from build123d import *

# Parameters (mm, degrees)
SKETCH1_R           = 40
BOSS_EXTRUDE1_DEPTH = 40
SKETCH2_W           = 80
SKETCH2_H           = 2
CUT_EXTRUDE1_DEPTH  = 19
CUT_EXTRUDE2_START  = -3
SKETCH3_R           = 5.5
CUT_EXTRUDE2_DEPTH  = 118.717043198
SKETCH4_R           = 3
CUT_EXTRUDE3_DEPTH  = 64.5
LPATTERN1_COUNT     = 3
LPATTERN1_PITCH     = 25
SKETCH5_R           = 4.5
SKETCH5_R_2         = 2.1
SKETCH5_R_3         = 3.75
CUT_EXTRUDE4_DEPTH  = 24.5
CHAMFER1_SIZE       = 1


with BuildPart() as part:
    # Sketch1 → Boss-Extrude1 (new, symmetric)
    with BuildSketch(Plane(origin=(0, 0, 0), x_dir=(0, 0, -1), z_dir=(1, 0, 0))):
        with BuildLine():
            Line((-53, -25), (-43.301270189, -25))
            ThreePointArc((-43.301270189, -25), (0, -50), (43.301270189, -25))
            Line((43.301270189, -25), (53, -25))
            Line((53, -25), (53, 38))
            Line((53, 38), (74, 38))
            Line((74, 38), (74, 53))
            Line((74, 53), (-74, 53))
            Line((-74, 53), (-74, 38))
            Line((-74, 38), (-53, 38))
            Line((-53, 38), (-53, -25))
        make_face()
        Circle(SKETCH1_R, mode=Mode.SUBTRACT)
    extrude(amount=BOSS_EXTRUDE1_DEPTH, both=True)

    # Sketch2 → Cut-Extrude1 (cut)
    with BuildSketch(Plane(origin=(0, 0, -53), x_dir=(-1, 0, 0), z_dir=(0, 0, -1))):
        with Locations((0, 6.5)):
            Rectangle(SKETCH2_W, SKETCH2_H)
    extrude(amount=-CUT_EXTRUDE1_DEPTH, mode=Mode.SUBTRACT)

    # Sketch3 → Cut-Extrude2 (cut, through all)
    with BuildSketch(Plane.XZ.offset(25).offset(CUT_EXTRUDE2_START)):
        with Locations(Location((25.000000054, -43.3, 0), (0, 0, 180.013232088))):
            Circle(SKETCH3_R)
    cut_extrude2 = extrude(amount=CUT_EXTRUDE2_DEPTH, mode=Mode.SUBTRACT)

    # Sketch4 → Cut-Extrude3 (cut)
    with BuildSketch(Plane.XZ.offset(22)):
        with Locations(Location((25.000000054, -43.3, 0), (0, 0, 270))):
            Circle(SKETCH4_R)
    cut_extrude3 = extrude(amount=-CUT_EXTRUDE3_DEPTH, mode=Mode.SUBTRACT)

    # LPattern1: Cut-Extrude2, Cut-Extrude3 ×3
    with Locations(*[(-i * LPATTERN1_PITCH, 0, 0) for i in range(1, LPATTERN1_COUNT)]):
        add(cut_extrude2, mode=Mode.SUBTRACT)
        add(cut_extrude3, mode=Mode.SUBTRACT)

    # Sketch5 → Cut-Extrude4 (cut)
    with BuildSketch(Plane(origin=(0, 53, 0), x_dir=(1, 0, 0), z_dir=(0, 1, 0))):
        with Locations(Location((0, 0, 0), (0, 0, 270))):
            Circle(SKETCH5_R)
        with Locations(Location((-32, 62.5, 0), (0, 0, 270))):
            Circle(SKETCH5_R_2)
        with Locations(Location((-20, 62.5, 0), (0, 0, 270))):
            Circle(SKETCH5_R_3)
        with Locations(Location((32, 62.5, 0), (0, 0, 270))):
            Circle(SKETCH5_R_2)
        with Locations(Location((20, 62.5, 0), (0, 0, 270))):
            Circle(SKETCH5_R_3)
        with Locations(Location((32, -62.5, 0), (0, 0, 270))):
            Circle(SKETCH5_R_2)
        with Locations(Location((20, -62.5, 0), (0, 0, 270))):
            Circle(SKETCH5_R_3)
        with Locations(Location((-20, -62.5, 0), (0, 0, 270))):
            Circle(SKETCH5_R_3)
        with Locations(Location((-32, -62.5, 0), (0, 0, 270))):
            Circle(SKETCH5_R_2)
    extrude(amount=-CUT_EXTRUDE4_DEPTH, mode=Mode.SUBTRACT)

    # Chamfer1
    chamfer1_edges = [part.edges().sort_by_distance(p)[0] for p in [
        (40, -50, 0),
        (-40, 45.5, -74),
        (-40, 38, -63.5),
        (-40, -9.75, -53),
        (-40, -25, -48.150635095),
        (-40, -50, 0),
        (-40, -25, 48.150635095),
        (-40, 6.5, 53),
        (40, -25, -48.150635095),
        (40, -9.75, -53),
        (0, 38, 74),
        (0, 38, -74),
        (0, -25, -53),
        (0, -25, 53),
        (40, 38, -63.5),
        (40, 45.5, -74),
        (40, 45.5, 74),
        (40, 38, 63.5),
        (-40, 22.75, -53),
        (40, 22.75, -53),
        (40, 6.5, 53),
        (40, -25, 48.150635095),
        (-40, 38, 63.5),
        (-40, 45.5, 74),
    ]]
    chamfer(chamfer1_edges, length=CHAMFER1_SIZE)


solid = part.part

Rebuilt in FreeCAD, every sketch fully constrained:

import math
import FreeCAD as App
import Part
import Sketcher


def edges_at(feature, points):
    """Names of the edges that pass closest to the given points."""
    edges = feature.Shape.Edges
    near = lambda p: min(range(len(edges)), key=lambda i: edges[i].distToShape(Part.Vertex(*p))[0])
    return sorted({f"Edge{near(p) + 1}" for p in points})

doc = App.newDocument("Part")
params = doc.addObject("Spreadsheet::Sheet", "Params")
for row, (alias, value) in enumerate([
    ("sketch1_diameter", "80 mm"),
    ("sketch1_radius", "50 mm"),
    ("sketch1_width", "63 mm"),
    ("sketch1_width2", "15 mm"),
    ("sketch1_height", "21 mm"),
    ("pad1_length", "80 mm"),
    ("sketch2_width", "80 mm"),
    ("sketch2_height", "2 mm"),
    ("pocket1_length", "19 mm"),
    ("sketch3_diameter", "11 mm"),
    ("sketch4_diameter", "6 mm"),
    ("pocket3_length", "64.5 mm"),
    ("linearpattern_pitch", "25 mm"),
    ("sketch5_diameter", "9 mm"),
    ("sketch5_diameter2", "4.2 mm"),
    ("sketch5_diameter3", "7.5 mm"),
    ("pocket4_length", "24.5 mm"),
    ("chamfer_size", "1 mm"),
], start=1):
    params.set(f"A{row}", alias)
    params.set(f"B{row}", "=" + value)
    params.setAlias(f"B{row}", alias)

body = doc.addObject("PartDesign::Body", "Body")

sketch1 = doc.addObject("Sketcher::SketchObject", "Sketch")
body.addObject(sketch1)
sketch1.AttachmentSupport = (doc.YZ_Plane, [""])
sketch1.MapMode = "FlatFace"
sketch1.addGeometry(Part.LineSegment(App.Vector(-25, 53, 0), App.Vector(-25, 43, 0)), False)
sketch1.addGeometry(Part.ArcOfCircle(Part.Circle(App.Vector(0, 0, 0), App.Vector(0, 0, 1), 50), math.radians(120), math.radians(240)), False)
sketch1.addGeometry(Part.LineSegment(App.Vector(-25, -43, 0), App.Vector(-25, -53, 0)), False)
sketch1.addGeometry(Part.LineSegment(App.Vector(-25, -53, 0), App.Vector(38, -53, 0)), False)
sketch1.addGeometry(Part.LineSegment(App.Vector(38, -53, 0), App.Vector(38, -74, 0)), False)
sketch1.addGeometry(Part.LineSegment(App.Vector(38, -74, 0), App.Vector(53, -74, 0)), False)
sketch1.addGeometry(Part.LineSegment(App.Vector(53, -74, 0), App.Vector(53, 74, 0)), False)
sketch1.addGeometry(Part.LineSegment(App.Vector(53, 74, 0), App.Vector(38, 74, 0)), False)
sketch1.addGeometry(Part.LineSegment(App.Vector(38, 74, 0), App.Vector(38, 53, 0)), False)
sketch1.addGeometry(Part.LineSegment(App.Vector(38, 53, 0), App.Vector(-25, 53, 0)), False)
sketch1.addGeometry(Part.Circle(App.Vector(0, 0, 0), App.Vector(0, 0, 1), 40), False)
sketch1.addConstraint(Sketcher.Constraint("Coincident", 0, 2, 1, 1))
sketch1.addConstraint(Sketcher.Constraint("Coincident", 1, 2, 2, 1))
sketch1.addConstraint(Sketcher.Constraint("Coincident", 2, 2, 3, 1))
sketch1.addConstraint(Sketcher.Constraint("Coincident", 3, 2, 4, 1))
sketch1.addConstraint(Sketcher.Constraint("Coincident", 4, 2, 5, 1))
sketch1.addConstraint(Sketcher.Constraint("Coincident", 5, 2, 6, 1))
sketch1.addConstraint(Sketcher.Constraint("Coincident", 6, 2, 7, 1))
sketch1.addConstraint(Sketcher.Constraint("Coincident", 7, 2, 8, 1))
sketch1.addConstraint(Sketcher.Constraint("Coincident", 8, 2, 9, 1))
sketch1.addConstraint(Sketcher.Constraint("Coincident", 9, 2, 0, 1))
sketch1.addConstraint(Sketcher.Constraint("Vertical", 0))
sketch1.addConstraint(Sketcher.Constraint("Vertical", 2))
sketch1.addConstraint(Sketcher.Constraint("Horizontal", 3))
sketch1.addConstraint(Sketcher.Constraint("Vertical", 4))
sketch1.addConstraint(Sketcher.Constraint("Horizontal", 5))
sketch1.addConstraint(Sketcher.Constraint("Vertical", 6))
sketch1.addConstraint(Sketcher.Constraint("Horizontal", 7))
sketch1.addConstraint(Sketcher.Constraint("Vertical", 8))
sketch1.addConstraint(Sketcher.Constraint("Horizontal", 9))
sketch1.addConstraint(Sketcher.Constraint("Coincident", 1, 3, -1, 1))
sketch1.addConstraint(Sketcher.Constraint("Coincident", 10, 3, -1, 1))
sketch1.addConstraint(Sketcher.Constraint("Symmetric", 4, 2, 7, 2, -1))
sketch1.addConstraint(Sketcher.Constraint("Symmetric", 2, 2, 9, 2, -1))
sketch1.addConstraint(Sketcher.Constraint("Diameter", 10, 80.0))
sketch1.addConstraint(Sketcher.Constraint("Radius", 1, 50.0))
sketch1.addConstraint(Sketcher.Constraint("DistanceX", 3, 1, 3, 2, 63.0))
sketch1.addConstraint(Sketcher.Constraint("DistanceX", 5, 1, 5, 2, 15.0))
sketch1.addConstraint(Sketcher.Constraint("DistanceY", 4, 2, 4, 1, 21.0))
sketch1.addConstraint(Sketcher.Constraint("DistanceY", 6, 1, 6, 2, 148.0))
sketch1.addConstraint(Sketcher.Constraint("DistanceX", 0, 2, -1, 1, 25.0))
sketch1.setExpression("Constraints[23]", "Params.sketch1_diameter")
sketch1.setExpression("Constraints[24]", "Params.sketch1_radius")
sketch1.setExpression("Constraints[25]", "Params.sketch1_width")
sketch1.setExpression("Constraints[26]", "Params.sketch1_width2")
sketch1.setExpression("Constraints[27]", "Params.sketch1_height")
pad1 = doc.addObject("PartDesign::Pad", "Pad")
body.addObject(pad1)
pad1.Profile = sketch1
pad1.setExpression("Length", "Params.pad1_length")
pad1.Midplane = True

sketch2 = doc.addObject("Sketcher::SketchObject", "Sketch001")
body.addObject(sketch2)
sketch2.AttachmentSupport = (doc.XY_Plane, [""])
sketch2.MapMode = "FlatFace"
sketch2.AttachmentOffset = App.Placement(App.Vector(0, 0, -53), App.Rotation())
sketch2.addGeometry(Part.LineSegment(App.Vector(40, 7.5, 0), App.Vector(40, 5.5, 0)), False)
sketch2.addGeometry(Part.LineSegment(App.Vector(40, 5.5, 0), App.Vector(-40, 5.5, 0)), False)
sketch2.addGeometry(Part.LineSegment(App.Vector(-40, 5.5, 0), App.Vector(-40, 7.5, 0)), False)
sketch2.addGeometry(Part.LineSegment(App.Vector(-40, 7.5, 0), App.Vector(40, 7.5, 0)), False)
sketch2.addConstraint(Sketcher.Constraint("Coincident", 0, 2, 1, 1))
sketch2.addConstraint(Sketcher.Constraint("Coincident", 1, 2, 2, 1))
sketch2.addConstraint(Sketcher.Constraint("Coincident", 2, 2, 3, 1))
sketch2.addConstraint(Sketcher.Constraint("Coincident", 3, 2, 0, 1))
sketch2.addConstraint(Sketcher.Constraint("Vertical", 0))
sketch2.addConstraint(Sketcher.Constraint("Horizontal", 1))
sketch2.addConstraint(Sketcher.Constraint("Vertical", 2))
sketch2.addConstraint(Sketcher.Constraint("Horizontal", 3))
sketch2.addConstraint(Sketcher.Constraint("DistanceX", 1, 2, 1, 1, 80.0))
sketch2.addConstraint(Sketcher.Constraint("DistanceY", 0, 2, 0, 1, 2.0))
sketch2.addConstraint(Sketcher.Constraint("DistanceX", -1, 1, 0, 2, 40.0))
sketch2.addConstraint(Sketcher.Constraint("DistanceY", -1, 1, 0, 2, 5.5))
sketch2.setExpression("Constraints[8]", "Params.sketch2_width")
sketch2.setExpression("Constraints[9]", "Params.sketch2_height")
pocket1 = doc.addObject("PartDesign::Pocket", "Pocket")
body.addObject(pocket1)
pocket1.Profile = sketch2
pocket1.setExpression("Length", "Params.pocket1_length")
pocket1.Reversed = True

sketch3 = doc.addObject("Sketcher::SketchObject", "Sketch002")
body.addObject(sketch3)
sketch3.AttachmentSupport = (doc.XZ_Plane, [""])
sketch3.MapMode = "FlatFace"
sketch3.AttachmentOffset = App.Placement(App.Vector(0, 0, 22), App.Rotation())
sketch3.addGeometry(Part.Circle(App.Vector(25, -43, 0), App.Vector(0, 0, 1), 6), False)
sketch3.addConstraint(Sketcher.Constraint("Diameter", 0, 11.0))
sketch3.addConstraint(Sketcher.Constraint("DistanceX", -1, 1, 0, 3, 25.0))
sketch3.addConstraint(Sketcher.Constraint("DistanceY", 0, 3, -1, 1, 43.3))
sketch3.setExpression("Constraints[0]", "Params.sketch3_diameter")
pocket2 = doc.addObject("PartDesign::Pocket", "Pocket001")
body.addObject(pocket2)
pocket2.Profile = sketch3
pocket2.Type = "ThroughAll"
pocket2.Reversed = True

sketch4 = doc.addObject("Sketcher::SketchObject", "Sketch003")
body.addObject(sketch4)
sketch4.AttachmentSupport = (doc.XZ_Plane, [""])
sketch4.MapMode = "FlatFace"
sketch4.AttachmentOffset = App.Placement(App.Vector(0, 0, 22), App.Rotation())
sketch4.addGeometry(Part.Circle(App.Vector(25, -43.3, 0), App.Vector(0, 0, 1), 3), False)
sketch4.addConstraint(Sketcher.Constraint("Diameter", 0, 6.0))
sketch4.addConstraint(Sketcher.Constraint("DistanceX", -1, 1, 0, 3, 25.0))
sketch4.addConstraint(Sketcher.Constraint("DistanceY", 0, 3, -1, 1, 43.3))
sketch4.setExpression("Constraints[0]", "Params.sketch4_diameter")
pocket3 = doc.addObject("PartDesign::Pocket", "Pocket002")
body.addObject(pocket3)
pocket3.Profile = sketch4
pocket3.setExpression("Length", "Params.pocket3_length")
doc.recompute()

linearpattern = doc.addObject("PartDesign::LinearPattern", "LinearPattern")
body.addObject(linearpattern)
linearpattern.Originals = [pocket2, pocket3]
linearpattern.Direction = (doc.X_Axis, [""])
linearpattern.Mode = "offset"
linearpattern.setExpression("Offset", "Params.linearpattern_pitch")
linearpattern.Occurrences = 3
linearpattern.Reversed = True
body.Tip = linearpattern

sketch5 = doc.addObject("Sketcher::SketchObject", "Sketch004")
body.addObject(sketch5)
sketch5.AttachmentSupport = (doc.XZ_Plane, [""])
sketch5.MapMode = "FlatFace"
sketch5.AttachmentOffset = App.Placement(App.Vector(0, 0, -53), App.Rotation())
sketch5.addGeometry(Part.Circle(App.Vector(0, 0, 0), App.Vector(0, 0, 1), 4.5), False)
sketch5.addGeometry(Part.Circle(App.Vector(-32, -62.5, 0), App.Vector(0, 0, 1), 2.1), False)
sketch5.addGeometry(Part.Circle(App.Vector(-20, -62.5, 0), App.Vector(0, 0, 1), 3.8), False)
sketch5.addGeometry(Part.Circle(App.Vector(32, -62.5, 0), App.Vector(0, 0, 1), 2.1), False)
sketch5.addGeometry(Part.Circle(App.Vector(20, -62.5, 0), App.Vector(0, 0, 1), 3.8), False)
sketch5.addGeometry(Part.Circle(App.Vector(32, 62.5, 0), App.Vector(0, 0, 1), 2.1), False)
sketch5.addGeometry(Part.Circle(App.Vector(20, 62.5, 0), App.Vector(0, 0, 1), 3.8), False)
sketch5.addGeometry(Part.Circle(App.Vector(-20, 62.5, 0), App.Vector(0, 0, 1), 3.8), False)
sketch5.addGeometry(Part.Circle(App.Vector(-32, 62.5, 0), App.Vector(0, 0, 1), 2.1), False)
sketch5.addConstraint(Sketcher.Constraint("Coincident", 0, 3, -1, 1))
sketch5.addConstraint(Sketcher.Constraint("Equal", 1, 3))
sketch5.addConstraint(Sketcher.Constraint("Equal", 2, 4))
sketch5.addConstraint(Sketcher.Constraint("Equal", 3, 5))
sketch5.addConstraint(Sketcher.Constraint("Equal", 4, 6))
sketch5.addConstraint(Sketcher.Constraint("Equal", 6, 7))
sketch5.addConstraint(Sketcher.Constraint("Equal", 5, 8))
sketch5.addConstraint(Sketcher.Constraint("Symmetric", 1, 3, 5, 3, -1, 1))
sketch5.addConstraint(Sketcher.Constraint("Symmetric", 2, 3, 6, 3, -1, 1))
sketch5.addConstraint(Sketcher.Constraint("Symmetric", 4, 3, 7, 3, -1, 1))
sketch5.addConstraint(Sketcher.Constraint("Symmetric", 3, 3, 8, 3, -1, 1))
sketch5.addConstraint(Sketcher.Constraint("Symmetric", 1, 3, 3, 3, -2))
sketch5.addConstraint(Sketcher.Constraint("Symmetric", 2, 3, 4, 3, -2))
sketch5.addConstraint(Sketcher.Constraint("Horizontal", 1, 3, 2, 3))
sketch5.addConstraint(Sketcher.Constraint("Diameter", 0, 9.0))
sketch5.addConstraint(Sketcher.Constraint("Diameter", 1, 4.2))
sketch5.addConstraint(Sketcher.Constraint("Diameter", 2, 7.5))
sketch5.addConstraint(Sketcher.Constraint("DistanceX", 1, 3, -1, 1, 32.0))
sketch5.addConstraint(Sketcher.Constraint("DistanceX", 2, 3, -1, 1, 20.0))
sketch5.addConstraint(Sketcher.Constraint("DistanceY", 3, 3, 5, 3, 125.0))
sketch5.setExpression("Constraints[14]", "Params.sketch5_diameter")
sketch5.setExpression("Constraints[15]", "Params.sketch5_diameter2")
sketch5.setExpression("Constraints[16]", "Params.sketch5_diameter3")
pocket4 = doc.addObject("PartDesign::Pocket", "Pocket003")
body.addObject(pocket4)
pocket4.Profile = sketch5
pocket4.setExpression("Length", "Params.pocket4_length")
pocket4.Reversed = True
doc.recompute()

chamfer = doc.addObject("PartDesign::Chamfer", "Chamfer")
body.addObject(chamfer)
chamfer.Base = (pocket4, edges_at(pocket4, [
    (40, -50, 0),
    (-40, 45.5, -74),
    (-40, 38, -63.5),
    (-40, -9.75, -53),
    (-40, -25, -48.151),
    (-40, -50, 0),
    (-40, -25, 48.151),
    (-40, 6.5, 53),
    (40, -25, -48.151),
    (40, -9.75, -53),
    (0, 38, 74),
    (0, 38, -74),
    (0, -25, -53),
    (0, -25, 53),
    (40, 38, -63.5),
    (40, 45.5, -74),
    (40, 45.5, 74),
    (40, 38, 63.5),
    (-40, 22.75, -53),
    (40, 22.75, -53),
    (40, 6.5, 53),
    (40, -25, 48.151),
    (-40, 38, 63.5),
    (-40, 45.5, 74),
]))
chamfer.setExpression("Size", "Params.chamfer_size")

doc.recompute()
